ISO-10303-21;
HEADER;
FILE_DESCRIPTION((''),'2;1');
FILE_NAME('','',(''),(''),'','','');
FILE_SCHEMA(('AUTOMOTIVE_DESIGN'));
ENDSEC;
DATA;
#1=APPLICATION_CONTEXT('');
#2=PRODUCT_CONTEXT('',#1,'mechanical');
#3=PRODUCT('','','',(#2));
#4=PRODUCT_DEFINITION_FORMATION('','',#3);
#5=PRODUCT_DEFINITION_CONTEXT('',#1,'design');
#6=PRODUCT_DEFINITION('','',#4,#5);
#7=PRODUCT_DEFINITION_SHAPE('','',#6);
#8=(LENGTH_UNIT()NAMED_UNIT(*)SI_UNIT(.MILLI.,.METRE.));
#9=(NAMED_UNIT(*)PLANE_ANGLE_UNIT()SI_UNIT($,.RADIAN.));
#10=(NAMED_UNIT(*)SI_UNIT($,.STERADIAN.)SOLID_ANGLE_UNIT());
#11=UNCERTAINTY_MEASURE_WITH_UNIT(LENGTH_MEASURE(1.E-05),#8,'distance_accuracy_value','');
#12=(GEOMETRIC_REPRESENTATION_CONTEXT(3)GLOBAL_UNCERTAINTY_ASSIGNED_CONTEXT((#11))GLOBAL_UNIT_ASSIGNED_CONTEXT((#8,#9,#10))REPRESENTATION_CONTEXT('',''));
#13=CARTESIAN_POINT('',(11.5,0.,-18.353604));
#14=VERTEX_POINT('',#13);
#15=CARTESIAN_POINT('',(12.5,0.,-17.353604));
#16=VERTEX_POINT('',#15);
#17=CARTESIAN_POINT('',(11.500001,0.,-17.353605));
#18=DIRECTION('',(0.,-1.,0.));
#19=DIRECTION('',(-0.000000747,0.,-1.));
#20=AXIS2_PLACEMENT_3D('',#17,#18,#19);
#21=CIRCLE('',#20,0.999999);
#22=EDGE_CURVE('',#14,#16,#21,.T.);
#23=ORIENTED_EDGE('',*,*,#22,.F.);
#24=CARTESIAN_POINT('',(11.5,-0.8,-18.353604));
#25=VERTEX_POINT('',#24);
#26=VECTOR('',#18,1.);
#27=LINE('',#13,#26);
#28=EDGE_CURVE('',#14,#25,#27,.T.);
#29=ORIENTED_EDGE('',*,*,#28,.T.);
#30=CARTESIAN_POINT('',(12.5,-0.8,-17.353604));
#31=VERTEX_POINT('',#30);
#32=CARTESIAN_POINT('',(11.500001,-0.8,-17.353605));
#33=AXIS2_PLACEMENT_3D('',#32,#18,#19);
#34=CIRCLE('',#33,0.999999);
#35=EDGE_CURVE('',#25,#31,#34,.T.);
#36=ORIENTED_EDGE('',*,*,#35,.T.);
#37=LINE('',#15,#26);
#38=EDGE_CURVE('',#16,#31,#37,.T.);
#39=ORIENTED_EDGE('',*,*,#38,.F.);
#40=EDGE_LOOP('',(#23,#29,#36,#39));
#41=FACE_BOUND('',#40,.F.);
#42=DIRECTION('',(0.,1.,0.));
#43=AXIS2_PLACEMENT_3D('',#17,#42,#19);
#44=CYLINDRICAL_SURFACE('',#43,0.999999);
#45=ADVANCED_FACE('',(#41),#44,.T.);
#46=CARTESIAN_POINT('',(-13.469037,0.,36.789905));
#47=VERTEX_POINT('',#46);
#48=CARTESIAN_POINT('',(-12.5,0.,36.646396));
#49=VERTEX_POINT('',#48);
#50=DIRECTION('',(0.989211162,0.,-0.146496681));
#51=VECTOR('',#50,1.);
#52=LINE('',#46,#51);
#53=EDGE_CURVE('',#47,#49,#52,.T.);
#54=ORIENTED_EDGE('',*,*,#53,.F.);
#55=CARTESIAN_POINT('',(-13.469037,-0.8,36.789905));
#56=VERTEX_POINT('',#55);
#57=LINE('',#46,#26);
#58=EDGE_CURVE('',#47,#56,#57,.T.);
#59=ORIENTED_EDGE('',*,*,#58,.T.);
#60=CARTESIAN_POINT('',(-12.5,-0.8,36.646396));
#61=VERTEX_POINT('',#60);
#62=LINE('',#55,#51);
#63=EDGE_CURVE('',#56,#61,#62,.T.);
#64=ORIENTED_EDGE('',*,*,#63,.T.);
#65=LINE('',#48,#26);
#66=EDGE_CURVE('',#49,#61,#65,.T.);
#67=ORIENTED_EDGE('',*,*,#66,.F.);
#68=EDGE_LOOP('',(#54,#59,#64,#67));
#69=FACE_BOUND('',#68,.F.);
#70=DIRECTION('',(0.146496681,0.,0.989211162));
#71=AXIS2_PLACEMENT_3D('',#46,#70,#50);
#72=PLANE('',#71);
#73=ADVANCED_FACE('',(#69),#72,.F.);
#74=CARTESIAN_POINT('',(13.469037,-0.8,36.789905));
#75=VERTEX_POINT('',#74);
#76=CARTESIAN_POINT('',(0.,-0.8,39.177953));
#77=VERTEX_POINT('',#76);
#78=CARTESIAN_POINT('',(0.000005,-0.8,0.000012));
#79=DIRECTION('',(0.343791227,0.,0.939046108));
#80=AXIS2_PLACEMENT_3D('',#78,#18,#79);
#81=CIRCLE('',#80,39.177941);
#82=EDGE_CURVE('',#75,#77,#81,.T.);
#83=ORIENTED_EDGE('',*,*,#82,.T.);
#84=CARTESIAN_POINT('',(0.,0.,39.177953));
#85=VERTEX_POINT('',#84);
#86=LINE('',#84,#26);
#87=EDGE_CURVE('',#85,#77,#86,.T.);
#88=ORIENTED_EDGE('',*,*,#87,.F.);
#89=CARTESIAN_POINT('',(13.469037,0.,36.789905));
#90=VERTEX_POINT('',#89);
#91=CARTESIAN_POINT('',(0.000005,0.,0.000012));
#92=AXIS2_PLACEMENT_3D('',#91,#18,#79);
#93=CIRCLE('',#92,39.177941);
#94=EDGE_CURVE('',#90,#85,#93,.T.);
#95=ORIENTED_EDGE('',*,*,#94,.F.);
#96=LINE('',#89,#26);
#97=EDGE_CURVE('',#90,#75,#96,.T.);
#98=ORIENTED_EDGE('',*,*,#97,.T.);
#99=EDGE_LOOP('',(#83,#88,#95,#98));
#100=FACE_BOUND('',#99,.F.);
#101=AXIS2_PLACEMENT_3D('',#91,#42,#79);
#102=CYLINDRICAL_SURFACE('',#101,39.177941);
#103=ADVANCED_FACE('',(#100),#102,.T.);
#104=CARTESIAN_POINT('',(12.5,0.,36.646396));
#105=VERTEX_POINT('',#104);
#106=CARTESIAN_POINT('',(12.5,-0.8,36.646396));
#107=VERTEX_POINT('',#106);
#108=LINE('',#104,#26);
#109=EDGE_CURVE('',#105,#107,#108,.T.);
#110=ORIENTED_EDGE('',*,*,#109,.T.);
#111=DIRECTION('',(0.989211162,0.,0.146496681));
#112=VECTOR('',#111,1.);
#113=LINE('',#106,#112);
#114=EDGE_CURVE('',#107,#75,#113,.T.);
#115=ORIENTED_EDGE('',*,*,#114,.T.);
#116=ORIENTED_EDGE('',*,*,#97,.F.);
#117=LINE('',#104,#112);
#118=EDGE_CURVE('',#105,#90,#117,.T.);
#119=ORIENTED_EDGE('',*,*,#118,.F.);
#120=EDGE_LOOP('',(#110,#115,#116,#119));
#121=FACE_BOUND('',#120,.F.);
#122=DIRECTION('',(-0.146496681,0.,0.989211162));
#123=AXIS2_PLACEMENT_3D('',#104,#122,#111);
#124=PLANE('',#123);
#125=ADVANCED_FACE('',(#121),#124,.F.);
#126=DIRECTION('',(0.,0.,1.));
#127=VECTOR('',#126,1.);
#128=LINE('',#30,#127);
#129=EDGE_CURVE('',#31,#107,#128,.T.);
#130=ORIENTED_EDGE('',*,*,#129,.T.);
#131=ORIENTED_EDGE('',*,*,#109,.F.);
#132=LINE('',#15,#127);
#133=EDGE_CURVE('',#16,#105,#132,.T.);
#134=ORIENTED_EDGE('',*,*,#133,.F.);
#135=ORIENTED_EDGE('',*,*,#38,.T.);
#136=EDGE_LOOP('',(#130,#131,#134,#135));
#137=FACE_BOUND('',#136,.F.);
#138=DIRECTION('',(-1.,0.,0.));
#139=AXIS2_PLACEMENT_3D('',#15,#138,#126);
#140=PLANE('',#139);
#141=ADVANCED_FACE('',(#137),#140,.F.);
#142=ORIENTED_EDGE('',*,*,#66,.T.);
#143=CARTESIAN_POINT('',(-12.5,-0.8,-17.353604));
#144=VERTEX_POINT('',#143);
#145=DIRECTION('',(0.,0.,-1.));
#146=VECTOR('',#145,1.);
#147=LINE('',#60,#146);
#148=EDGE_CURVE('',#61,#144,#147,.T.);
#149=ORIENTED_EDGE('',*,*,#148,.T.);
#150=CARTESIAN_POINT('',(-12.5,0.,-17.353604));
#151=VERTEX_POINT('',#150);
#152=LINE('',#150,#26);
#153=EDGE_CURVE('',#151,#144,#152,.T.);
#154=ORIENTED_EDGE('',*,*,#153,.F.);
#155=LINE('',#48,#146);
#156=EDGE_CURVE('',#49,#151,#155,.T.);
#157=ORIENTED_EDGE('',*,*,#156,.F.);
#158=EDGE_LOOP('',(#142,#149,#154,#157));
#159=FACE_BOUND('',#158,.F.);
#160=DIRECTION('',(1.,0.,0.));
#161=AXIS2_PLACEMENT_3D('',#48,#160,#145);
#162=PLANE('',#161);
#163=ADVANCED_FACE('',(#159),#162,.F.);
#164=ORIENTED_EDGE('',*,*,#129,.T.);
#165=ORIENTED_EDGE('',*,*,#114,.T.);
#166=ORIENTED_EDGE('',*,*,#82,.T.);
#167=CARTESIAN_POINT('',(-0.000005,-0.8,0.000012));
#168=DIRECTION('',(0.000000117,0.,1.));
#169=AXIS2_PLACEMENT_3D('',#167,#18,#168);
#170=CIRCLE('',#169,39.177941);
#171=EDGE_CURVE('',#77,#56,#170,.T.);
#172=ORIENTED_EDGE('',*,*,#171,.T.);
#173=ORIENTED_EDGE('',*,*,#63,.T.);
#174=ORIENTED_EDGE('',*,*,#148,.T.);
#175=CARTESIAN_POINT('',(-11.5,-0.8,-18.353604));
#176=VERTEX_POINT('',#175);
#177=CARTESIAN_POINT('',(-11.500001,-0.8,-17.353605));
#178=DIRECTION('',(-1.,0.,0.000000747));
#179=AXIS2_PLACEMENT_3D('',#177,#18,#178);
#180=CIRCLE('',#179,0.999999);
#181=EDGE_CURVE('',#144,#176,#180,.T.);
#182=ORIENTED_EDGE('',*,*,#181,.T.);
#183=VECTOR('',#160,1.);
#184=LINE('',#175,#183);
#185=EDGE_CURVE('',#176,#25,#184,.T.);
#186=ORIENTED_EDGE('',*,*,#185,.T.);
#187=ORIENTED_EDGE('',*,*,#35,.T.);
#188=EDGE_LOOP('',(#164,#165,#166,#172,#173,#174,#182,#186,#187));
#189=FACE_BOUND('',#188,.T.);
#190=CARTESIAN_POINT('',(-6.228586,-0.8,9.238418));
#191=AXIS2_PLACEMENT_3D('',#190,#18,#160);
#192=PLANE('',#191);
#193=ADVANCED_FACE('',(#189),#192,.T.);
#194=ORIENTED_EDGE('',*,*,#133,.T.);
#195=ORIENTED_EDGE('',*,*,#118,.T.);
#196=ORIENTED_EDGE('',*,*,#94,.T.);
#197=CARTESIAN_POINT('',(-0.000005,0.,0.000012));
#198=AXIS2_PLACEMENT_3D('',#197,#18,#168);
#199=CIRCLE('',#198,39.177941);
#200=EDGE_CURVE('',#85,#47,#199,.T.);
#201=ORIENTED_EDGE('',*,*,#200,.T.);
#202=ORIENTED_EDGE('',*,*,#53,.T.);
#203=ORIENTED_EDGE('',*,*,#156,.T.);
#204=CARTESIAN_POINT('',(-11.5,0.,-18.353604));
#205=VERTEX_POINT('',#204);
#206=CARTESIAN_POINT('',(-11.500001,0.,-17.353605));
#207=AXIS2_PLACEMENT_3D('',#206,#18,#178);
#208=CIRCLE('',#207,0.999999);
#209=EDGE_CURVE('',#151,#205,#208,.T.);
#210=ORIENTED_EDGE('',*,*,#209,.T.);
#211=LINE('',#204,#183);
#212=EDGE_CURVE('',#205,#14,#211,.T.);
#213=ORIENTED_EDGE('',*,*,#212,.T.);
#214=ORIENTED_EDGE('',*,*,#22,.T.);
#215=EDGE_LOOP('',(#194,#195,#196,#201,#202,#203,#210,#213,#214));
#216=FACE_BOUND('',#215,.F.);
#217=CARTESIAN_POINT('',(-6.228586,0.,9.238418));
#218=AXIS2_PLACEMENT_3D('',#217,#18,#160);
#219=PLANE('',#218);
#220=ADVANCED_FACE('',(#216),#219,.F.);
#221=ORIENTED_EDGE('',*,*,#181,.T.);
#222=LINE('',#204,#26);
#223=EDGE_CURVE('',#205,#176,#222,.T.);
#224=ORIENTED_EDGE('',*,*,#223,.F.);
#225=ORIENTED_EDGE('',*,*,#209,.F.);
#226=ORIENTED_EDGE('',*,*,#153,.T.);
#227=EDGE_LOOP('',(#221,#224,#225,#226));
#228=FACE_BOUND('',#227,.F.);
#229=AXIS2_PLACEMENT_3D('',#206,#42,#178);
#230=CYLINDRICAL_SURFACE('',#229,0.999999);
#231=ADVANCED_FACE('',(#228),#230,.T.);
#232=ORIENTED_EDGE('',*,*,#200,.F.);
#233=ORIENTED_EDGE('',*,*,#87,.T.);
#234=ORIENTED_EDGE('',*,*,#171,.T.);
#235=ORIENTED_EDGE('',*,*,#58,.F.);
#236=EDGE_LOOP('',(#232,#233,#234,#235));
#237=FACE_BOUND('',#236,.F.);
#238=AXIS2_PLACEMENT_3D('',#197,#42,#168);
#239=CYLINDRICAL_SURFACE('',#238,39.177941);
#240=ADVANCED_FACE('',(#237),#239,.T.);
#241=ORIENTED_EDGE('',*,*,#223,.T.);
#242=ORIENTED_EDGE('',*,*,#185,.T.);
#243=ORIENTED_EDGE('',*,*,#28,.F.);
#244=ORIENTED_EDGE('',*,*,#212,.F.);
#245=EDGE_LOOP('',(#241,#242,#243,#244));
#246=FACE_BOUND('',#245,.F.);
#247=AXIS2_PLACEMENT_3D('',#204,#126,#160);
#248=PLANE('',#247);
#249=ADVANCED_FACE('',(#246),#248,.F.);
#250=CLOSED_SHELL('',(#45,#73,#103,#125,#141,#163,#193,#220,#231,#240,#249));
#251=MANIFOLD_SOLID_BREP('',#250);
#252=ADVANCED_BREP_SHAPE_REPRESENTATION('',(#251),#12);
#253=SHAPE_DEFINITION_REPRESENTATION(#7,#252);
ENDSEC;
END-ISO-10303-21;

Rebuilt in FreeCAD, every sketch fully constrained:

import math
import FreeCAD as App
import Part
import Sketcher

doc = App.newDocument("Part")
body = doc.addObject("PartDesign::Body", "Body")

sketch1 = body.newObject("Sketcher::SketchObject", "Sketch")
sketch1.AttachmentSupport = (doc.getObject("XZ_Plane"), [""])
sketch1.MapMode = "FlatFace"
sketch1.addGeometry([
    Part.LineSegment(App.Vector(12.5, 36.6, 0), App.Vector(13.5, 36.8, 0)),
    Part.ArcOfCircle(Part.Circle(App.Vector(0, 0, 0), App.Vector(0, 0, 1), 39.2), math.radians(70), math.radians(90)),
    Part.ArcOfCircle(Part.Circle(App.Vector(0, 0, 0), App.Vector(0, 0, 1), 39.2), math.radians(90), math.radians(110)),
    Part.LineSegment(App.Vector(-13.5, 36.8, 0), App.Vector(-12.5, 36.6, 0)),
    Part.LineSegment(App.Vector(-12.5, 36.6, 0), App.Vector(-12.5, -17.4, 0)),
    Part.ArcOfCircle(Part.Circle(App.Vector(-11.5, -17.4, 0), App.Vector(0, 0, 1), 1), math.radians(180), math.radians(270)),
    Part.LineSegment(App.Vector(-11.5, -18.4, 0), App.Vector(11.5, -18.4, 0)),
    Part.ArcOfCircle(Part.Circle(App.Vector(11.5, -17.4, 0), App.Vector(0, 0, 1), 1), math.radians(-90), math.radians(0)),
    Part.LineSegment(App.Vector(12.5, -17.4, 0), App.Vector(12.5, 36.6, 0)),
], False)
sketch1.addConstraint([
    Sketcher.Constraint("Coincident", 0, 2, 1, 1),
    Sketcher.Constraint("Tangent", 1, 2, 2, 1),
    Sketcher.Constraint("Coincident", 2, 2, 3, 1),
    Sketcher.Constraint("Coincident", 3, 2, 4, 1),
    Sketcher.Constraint("Tangent", 4, 2, 5, 1),
    Sketcher.Constraint("Tangent", 5, 2, 6, 1),
    Sketcher.Constraint("Tangent", 6, 2, 7, 1),
    Sketcher.Constraint("Tangent", 7, 2, 8, 1),
    Sketcher.Constraint("Coincident", 8, 2, 0, 1),
    Sketcher.Constraint("Vertical", 4),
    Sketcher.Constraint("Horizontal", 6),
    Sketcher.Constraint("Vertical", 8),
    Sketcher.Constraint("Equal", 1, 2),
    Sketcher.Constraint("Equal", 5, 7),
    Sketcher.Constraint("Symmetric", 0, 2, 2, 2, -2),
    Sketcher.Constraint("Symmetric", 3, 2, 8, 2, -2),
    Sketcher.Constraint("PointOnObject", 1, 2, -2),
    Sketcher.Constraint("Radius", 5, 0.999999),
    Sketcher.Constraint("DistanceX", 6, 1, 6, 2, 23.0),
    Sketcher.Constraint("DistanceY", 4, 2, 4, 1, 54.0),
    Sketcher.Constraint("Radius", 1, 39.177941),
    Sketcher.Constraint("DistanceX", 2, 3, 0, 2, 13.469042),
    Sketcher.Constraint("DistanceY", 7, 3, 0, 2, 54.14351),
    Sketcher.Constraint("DistanceY", 5, 3, -1, 1, 17.353605),
])
pad1 = body.newObject("PartDesign::Pad", "Pad")
pad1.Profile = sketch1
pad1.Length = 0.8

doc.recompute()
